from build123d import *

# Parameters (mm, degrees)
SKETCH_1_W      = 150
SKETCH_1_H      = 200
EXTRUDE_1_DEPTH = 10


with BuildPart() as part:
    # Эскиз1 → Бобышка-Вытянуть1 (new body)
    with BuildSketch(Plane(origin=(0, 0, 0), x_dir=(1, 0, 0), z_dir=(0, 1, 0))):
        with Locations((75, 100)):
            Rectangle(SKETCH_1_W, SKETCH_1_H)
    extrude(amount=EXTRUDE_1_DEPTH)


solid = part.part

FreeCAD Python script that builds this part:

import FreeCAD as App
import Part
import Sketcher
from FreeCAD import Vector


def add_polygon(sketch, points):
    """Adds a closed chain of lines whose ends are joined by coincident constraints."""
    first, n = sketch.GeometryCount, len(points)
    for a, b in zip(points, points[1:] + points[:1]):
        sketch.addGeometry(Part.LineSegment(App.Vector(*a, 0), App.Vector(*b, 0)), False)
    for i in range(n):
        sketch.addConstraint(Sketcher.Constraint("Coincident", first + i, 2, first + (i + 1) % n, 1))

doc = App.newDocument("Part")
body = doc.addObject("PartDesign::Body", "Body")

# Sketch on XZ plane
sketch1 = body.newObject("Sketcher::SketchObject", "Sketch")
sketch1.AttachmentSupport = (doc.getObject("XZ_Plane"), [""])
sketch1.MapMode = "FlatFace"
add_polygon(sketch1, [(0, -200), (0, 0), (150, 0), (150, -200)])  # lines 0-3
sketch1.addConstraint([
    Sketcher.Constraint("Vertical", 0),
    Sketcher.Constraint("Horizontal", 1),
    Sketcher.Constraint("Vertical", 2),
    Sketcher.Constraint("Horizontal", 3),
    Sketcher.Constraint("Coincident", 0, 2, -1, 1),
    Sketcher.Constraint("DistanceX", 1, 1, 1, 2, 150.0),
    Sketcher.Constraint("DistanceY", 0, 1, 0, 2, 200.0),
])
pad1 = body.newObject("PartDesign::Pad", "Pad")
pad1.Profile = sketch1
pad1.Length = 10
pad1.Reversed = True

doc.recompute()
